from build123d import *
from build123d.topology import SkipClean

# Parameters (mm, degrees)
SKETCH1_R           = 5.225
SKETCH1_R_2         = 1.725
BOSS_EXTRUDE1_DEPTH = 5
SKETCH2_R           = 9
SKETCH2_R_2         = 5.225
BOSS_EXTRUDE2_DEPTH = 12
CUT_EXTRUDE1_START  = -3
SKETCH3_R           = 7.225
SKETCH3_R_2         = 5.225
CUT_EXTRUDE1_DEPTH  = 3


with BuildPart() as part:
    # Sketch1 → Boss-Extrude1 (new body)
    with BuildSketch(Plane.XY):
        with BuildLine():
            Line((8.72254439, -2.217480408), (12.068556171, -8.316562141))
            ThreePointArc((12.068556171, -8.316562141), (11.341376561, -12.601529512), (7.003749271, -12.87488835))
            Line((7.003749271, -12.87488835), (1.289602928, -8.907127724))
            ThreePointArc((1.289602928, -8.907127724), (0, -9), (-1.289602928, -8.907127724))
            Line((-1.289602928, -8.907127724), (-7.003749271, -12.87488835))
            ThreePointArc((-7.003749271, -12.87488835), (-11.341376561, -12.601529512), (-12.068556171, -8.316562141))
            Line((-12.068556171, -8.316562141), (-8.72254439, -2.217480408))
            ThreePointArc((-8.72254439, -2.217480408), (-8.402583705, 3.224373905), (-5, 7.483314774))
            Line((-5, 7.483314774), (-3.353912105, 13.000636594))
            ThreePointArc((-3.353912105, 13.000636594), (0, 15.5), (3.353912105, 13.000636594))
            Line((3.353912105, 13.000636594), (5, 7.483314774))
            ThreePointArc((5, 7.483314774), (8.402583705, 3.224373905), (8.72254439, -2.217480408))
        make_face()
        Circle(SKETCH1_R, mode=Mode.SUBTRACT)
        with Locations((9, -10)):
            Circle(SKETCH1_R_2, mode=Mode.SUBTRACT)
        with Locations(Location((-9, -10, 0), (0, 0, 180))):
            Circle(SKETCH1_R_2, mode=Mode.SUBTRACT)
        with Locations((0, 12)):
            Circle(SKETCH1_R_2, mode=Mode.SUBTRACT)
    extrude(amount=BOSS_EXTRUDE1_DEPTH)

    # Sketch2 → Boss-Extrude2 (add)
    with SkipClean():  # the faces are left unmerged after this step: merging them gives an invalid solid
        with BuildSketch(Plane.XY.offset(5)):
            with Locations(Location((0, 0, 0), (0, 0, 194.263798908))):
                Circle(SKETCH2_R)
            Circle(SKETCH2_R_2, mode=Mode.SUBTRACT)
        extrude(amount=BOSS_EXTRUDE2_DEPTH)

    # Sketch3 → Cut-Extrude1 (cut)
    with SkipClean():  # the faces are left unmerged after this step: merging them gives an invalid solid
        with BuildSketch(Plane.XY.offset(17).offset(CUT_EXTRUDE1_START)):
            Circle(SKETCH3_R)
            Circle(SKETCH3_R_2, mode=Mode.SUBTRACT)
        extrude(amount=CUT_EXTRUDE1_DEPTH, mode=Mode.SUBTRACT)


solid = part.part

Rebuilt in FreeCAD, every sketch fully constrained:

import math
import FreeCAD as App
import Part
import Sketcher
from FreeCAD import Vector

doc = App.newDocument("Part")
body = doc.addObject("PartDesign::Body", "Body")

sketch1 = body.newObject("Sketcher::SketchObject", "Sketch")
sketch1.AttachmentSupport = (doc.getObject("XY_Plane"), [""])
sketch1.MapMode = "FlatFace"
sketch1.addGeometry([
    Part.LineSegment(Vector(12.068556, -8.316562, 0), Vector(8.722544, -2.21748, 0)),
    Part.ArcOfCircle(Part.Circle(Vector(0, 0, 0), Vector(0, 0, 1), 9), math.radians(-14.263799), math.radians(56.251011)),
    Part.LineSegment(Vector(5, 7.483315, 0), Vector(3.353912, 13.000637, 0)),
    Part.ArcOfCircle(Part.Circle(Vector(0, 12, 0), Vector(0, 0, 1), 3.5), math.radians(16.612424), math.radians(163.387576)),
    Part.LineSegment(Vector(-3.353912, 13.000637, 0), Vector(-5, 7.483315, 0)),
    Part.ArcOfCircle(Part.Circle(Vector(0, 0, 0), Vector(0, 0, 1), 9), math.radians(123.748989), math.radians(194.263799)),
    Part.LineSegment(Vector(-8.722544, -2.21748, 0), Vector(-12.068556, -8.316562, 0)),
    Part.ArcOfCircle(Part.Circle(Vector(-9, -10, 0), Vector(0, 0, 1), 3.5), math.radians(151.250426), math.radians(304.775149)),
    Part.LineSegment(Vector(-7.003749, -12.874888, 0), Vector(-1.289603, -8.907128, 0)),
    Part.ArcOfCircle(Part.Circle(Vector(0, 0, 0), Vector(0, 0, 1), 9), math.radians(-98.238224), math.radians(-81.761776)),
    Part.LineSegment(Vector(1.289603, -8.907128, 0), Vector(7.003749, -12.874888, 0)),
    Part.ArcOfCircle(Part.Circle(Vector(9, -10, 0), Vector(0, 0, 1), 3.5), math.radians(-124.775149), math.radians(28.749574)),
    Part.Circle(Vector(9, -10, 0), Vector(0, 0, 1), 1.725),
    Part.Circle(Vector(0, 0, 0), Vector(0, 0, 1), 5.225),
    Part.Circle(Vector(-9, -10, 0), Vector(0, 0, 1), 1.725),
    Part.Circle(Vector(0, 12, 0), Vector(0, 0, 1), 1.725),
], False)
sketch1.addConstraint([
    Sketcher.Constraint("Coincident", 0, 2, 1, 1),
    Sketcher.Constraint("Coincident", 1, 2, 2, 1),
    Sketcher.Constraint("Tangent", 2, 2, 3, 1),
    Sketcher.Constraint("Tangent", 3, 2, 4, 1),
    Sketcher.Constraint("Coincident", 4, 2, 5, 1),
    Sketcher.Constraint("Coincident", 5, 2, 6, 1),
    Sketcher.Constraint("Tangent", 6, 2, 7, 1),
    Sketcher.Constraint("Tangent", 7, 2, 8, 1),
    Sketcher.Constraint("Coincident", 8, 2, 9, 1),
    Sketcher.Constraint("Coincident", 9, 2, 10, 1),
    Sketcher.Constraint("Tangent", 10, 2, 11, 1),
    Sketcher.Constraint("Tangent", 11, 2, 0, 1),
    Sketcher.Constraint("Coincident", 1, 3, -1, 1),
    Sketcher.Constraint("Coincident", 5, 3, -1, 1),
    Sketcher.Constraint("Coincident", 9, 3, -1, 1),
    Sketcher.Constraint("Coincident", 13, 3, -1, 1),
    Sketcher.Constraint("Coincident", 12, 3, 11, 3),
    Sketcher.Constraint("Coincident", 14, 3, 7, 3),
    Sketcher.Constraint("Coincident", 15, 3, 3, 3),
    Sketcher.Constraint("Equal", 1, 5),
    Sketcher.Constraint("Equal", 3, 7),
    Sketcher.Constraint("Equal", 5, 9),
    Sketcher.Constraint("Equal", 7, 11),
    Sketcher.Constraint("Equal", 12, 14),
    Sketcher.Constraint("Equal", 14, 15),
    Sketcher.Constraint("Symmetric", 7, 3, 11, 3, -2),
    Sketcher.Constraint("Symmetric", 2, 2, 3, 2, -2),
    Sketcher.Constraint("Horizontal", 0, 2, 5, 2),
    Sketcher.Constraint("Horizontal", 8, 2, 9, 2),
    Sketcher.Constraint("Equal", 6, 8),
    Sketcher.Constraint("Radius", 1, 9.0),
    Sketcher.Constraint("Radius", 3, 3.5),
    Sketcher.Constraint("Diameter", 12, 3.45),
    Sketcher.Constraint("Diameter", 13, 10.45),
    Sketcher.Constraint("DistanceY", -1, 1, 3, 3, 12.0),
    Sketcher.Constraint("DistanceX", 7, 3, -1, 1, 9.0),
    Sketcher.Constraint("DistanceY", 7, 3, -1, 1, 10.0),
    Sketcher.Constraint("DistanceX", -1, 1, 1, 2, 5.0),
    Sketcher.Constraint("DistanceY", 0, 2, -1, 1, 2.21748),
])
pad1 = body.newObject("PartDesign::Pad", "Pad")
pad1.Profile = sketch1
pad1.Length = 5

sketch2 = body.newObject("Sketcher::SketchObject", "Sketch001")
sketch2.AttachmentSupport = (doc.getObject("XY_Plane"), [""])
sketch2.MapMode = "FlatFace"
sketch2.AttachmentOffset = App.Placement(Vector(0, 0, 5), App.Rotation())
sketch2.addGeometry([
    Part.Circle(Vector(0, 0, 0), Vector(0, 0, 1), 9),
    Part.Circle(Vector(0, 0, 0), Vector(0, 0, 1), 5.225),
], False)
sketch2.addConstraint([
    Sketcher.Constraint("Coincident", 0, 3, -1, 1),
    Sketcher.Constraint("Coincident", 1, 3, -1, 1),
    Sketcher.Constraint("Diameter", 0, 18.0),
    Sketcher.Constraint("Diameter", 1, 10.45),
])
pad2 = body.newObject("PartDesign::Pad", "Pad001")
pad2.Profile = sketch2
pad2.Length = 12

sketch3 = body.newObject("Sketcher::SketchObject", "Sketch002")
sketch3.AttachmentSupport = (doc.getObject("XY_Plane"), [""])
sketch3.MapMode = "FlatFace"
sketch3.AttachmentOffset = App.Placement(Vector(0, 0, 14), App.Rotation())
sketch3.addGeometry([
    Part.Circle(Vector(0, 0, 0), Vector(0, 0, 1), 7.225),
    Part.Circle(Vector(0, 0, 0), Vector(0, 0, 1), 5.225),
], False)
sketch3.addConstraint([
    Sketcher.Constraint("Coincident", 0, 3, -1, 1),
    Sketcher.Constraint("Coincident", 1, 3, -1, 1),
    Sketcher.Constraint("Diameter", 0, 14.45),
    Sketcher.Constraint("Diameter", 1, 10.45),
])
pocket1 = body.newObject("PartDesign::Pocket", "Pocket")
pocket1.Profile = sketch3
pocket1.Length = 3
pocket1.Reversed = True

doc.recompute()
